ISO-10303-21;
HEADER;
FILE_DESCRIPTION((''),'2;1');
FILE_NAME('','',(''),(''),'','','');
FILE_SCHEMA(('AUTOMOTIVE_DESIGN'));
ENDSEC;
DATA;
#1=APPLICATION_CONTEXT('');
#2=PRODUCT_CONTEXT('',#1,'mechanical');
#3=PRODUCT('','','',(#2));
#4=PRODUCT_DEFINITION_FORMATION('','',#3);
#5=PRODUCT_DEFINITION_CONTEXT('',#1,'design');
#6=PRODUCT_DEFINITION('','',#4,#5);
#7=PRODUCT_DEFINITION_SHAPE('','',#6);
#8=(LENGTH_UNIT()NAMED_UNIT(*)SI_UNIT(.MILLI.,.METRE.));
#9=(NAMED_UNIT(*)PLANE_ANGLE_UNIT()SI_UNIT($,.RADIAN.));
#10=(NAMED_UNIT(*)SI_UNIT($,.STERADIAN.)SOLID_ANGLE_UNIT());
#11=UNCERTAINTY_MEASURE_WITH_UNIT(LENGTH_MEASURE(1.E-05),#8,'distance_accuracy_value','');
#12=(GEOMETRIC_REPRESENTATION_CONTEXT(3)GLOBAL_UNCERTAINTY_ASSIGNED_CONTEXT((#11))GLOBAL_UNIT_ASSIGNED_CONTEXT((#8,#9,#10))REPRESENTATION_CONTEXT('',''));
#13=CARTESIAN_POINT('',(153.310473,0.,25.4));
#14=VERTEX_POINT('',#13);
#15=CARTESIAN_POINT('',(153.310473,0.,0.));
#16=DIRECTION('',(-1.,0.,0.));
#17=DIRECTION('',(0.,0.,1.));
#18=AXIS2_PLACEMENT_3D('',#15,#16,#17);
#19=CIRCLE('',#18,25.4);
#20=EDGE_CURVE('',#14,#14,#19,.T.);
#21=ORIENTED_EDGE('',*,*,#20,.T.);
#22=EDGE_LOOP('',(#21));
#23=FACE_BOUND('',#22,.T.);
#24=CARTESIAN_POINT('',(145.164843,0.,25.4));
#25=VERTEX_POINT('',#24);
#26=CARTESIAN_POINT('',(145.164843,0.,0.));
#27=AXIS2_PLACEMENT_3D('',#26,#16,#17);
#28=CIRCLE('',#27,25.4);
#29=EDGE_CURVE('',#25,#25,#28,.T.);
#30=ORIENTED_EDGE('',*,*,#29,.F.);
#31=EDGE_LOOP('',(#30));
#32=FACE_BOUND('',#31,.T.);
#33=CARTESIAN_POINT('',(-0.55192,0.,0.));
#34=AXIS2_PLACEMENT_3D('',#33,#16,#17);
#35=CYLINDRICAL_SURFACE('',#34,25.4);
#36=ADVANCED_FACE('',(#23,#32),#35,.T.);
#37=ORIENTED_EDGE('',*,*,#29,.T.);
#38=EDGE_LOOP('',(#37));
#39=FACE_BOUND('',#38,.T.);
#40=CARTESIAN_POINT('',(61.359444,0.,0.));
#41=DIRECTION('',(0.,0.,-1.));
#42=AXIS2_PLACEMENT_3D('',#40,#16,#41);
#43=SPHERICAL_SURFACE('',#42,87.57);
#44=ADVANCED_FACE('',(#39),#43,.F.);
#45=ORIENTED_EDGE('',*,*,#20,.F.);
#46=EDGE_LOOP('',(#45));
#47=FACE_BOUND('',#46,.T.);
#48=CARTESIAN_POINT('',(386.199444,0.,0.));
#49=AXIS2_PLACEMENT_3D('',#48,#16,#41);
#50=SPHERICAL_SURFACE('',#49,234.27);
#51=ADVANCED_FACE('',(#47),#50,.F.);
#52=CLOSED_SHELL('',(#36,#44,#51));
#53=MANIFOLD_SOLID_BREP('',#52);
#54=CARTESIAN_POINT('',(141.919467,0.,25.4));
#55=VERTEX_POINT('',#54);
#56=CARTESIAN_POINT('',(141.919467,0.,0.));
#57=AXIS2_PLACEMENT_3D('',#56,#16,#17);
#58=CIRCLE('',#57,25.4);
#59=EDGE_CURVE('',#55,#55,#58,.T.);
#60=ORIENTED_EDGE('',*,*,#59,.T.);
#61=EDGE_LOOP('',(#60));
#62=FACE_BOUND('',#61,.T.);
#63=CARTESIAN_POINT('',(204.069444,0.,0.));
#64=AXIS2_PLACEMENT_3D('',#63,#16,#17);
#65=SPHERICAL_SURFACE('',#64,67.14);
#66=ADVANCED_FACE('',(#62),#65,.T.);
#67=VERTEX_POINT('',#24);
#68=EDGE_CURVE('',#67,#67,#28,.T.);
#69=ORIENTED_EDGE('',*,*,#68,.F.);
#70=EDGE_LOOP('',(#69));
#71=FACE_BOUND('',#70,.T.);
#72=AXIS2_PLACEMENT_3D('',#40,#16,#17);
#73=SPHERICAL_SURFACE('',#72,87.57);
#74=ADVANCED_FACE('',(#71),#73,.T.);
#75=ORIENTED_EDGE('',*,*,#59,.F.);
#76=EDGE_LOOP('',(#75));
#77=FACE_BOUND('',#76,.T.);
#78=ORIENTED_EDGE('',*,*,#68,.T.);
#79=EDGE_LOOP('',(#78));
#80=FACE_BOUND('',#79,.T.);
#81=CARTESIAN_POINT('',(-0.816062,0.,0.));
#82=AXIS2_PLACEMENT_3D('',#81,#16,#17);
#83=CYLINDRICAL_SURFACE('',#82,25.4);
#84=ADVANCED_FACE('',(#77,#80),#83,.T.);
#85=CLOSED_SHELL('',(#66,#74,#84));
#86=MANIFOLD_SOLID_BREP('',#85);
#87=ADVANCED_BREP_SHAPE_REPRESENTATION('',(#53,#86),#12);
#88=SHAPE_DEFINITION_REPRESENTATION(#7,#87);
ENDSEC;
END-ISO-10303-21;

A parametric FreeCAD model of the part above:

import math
import FreeCAD as App
import Part
import Sketcher

doc = App.newDocument("Part")
body = doc.addObject("PartDesign::Body", "Body")

sketch1 = body.newObject("Sketcher::SketchObject", "Sketch")
sketch1.AttachmentSupport = (doc.getObject("XZ_Plane"), [""])
sketch1.MapMode = "FlatFace"
sketch1.addGeometry([
    Part.ArcOfCircle(Part.Circle(App.Vector(204.1, 0, 0), App.Vector(0, 0, 1), 67.1), math.radians(180), math.radians(202)),
    Part.LineSegment(App.Vector(136.9, 0, 0), App.Vector(148.9, 0, 0)),
    Part.ArcOfCircle(Part.Circle(App.Vector(61.4, 0, 0), App.Vector(0, 0, 1), 87.6), math.radians(-16.86), math.radians(0)),
    Part.LineSegment(App.Vector(145.2, -25.4, 0), App.Vector(141.9, -25.4, 0)),
], False)
sketch1.addConstraint([
    Sketcher.Constraint("Coincident", 0, 1, 1, 1),
    Sketcher.Constraint("Coincident", 1, 2, 2, 2),
    Sketcher.Constraint("Coincident", 2, 1, 3, 1),
    Sketcher.Constraint("Coincident", 3, 2, 0, 2),
    Sketcher.Constraint("Horizontal", 1),
    Sketcher.Constraint("Horizontal", 3),
    Sketcher.Constraint("PointOnObject", 0, 3, -1),
    Sketcher.Constraint("PointOnObject", 2, 3, -1),
    Sketcher.Constraint("PointOnObject", 0, 1, -1),
    Sketcher.Constraint("DistanceX", 1, 1, 1, 2, 12.0),
    Sketcher.Constraint("Radius", 0, 67.14),
    Sketcher.Constraint("Radius", 2, 87.57),
    Sketcher.Constraint("DistanceY", 2, 1, -1, 1, 25.4),
    Sketcher.Constraint("DistanceX", -1, 1, 0, 3, 204.069444),
])
revolution = body.newObject("PartDesign::Revolution", "Revolution")
revolution.Profile = sketch1
revolution.ReferenceAxis = (sketch1, ["H_Axis"])
revolution.Angle = 360
body2 = doc.addObject("PartDesign::Body", "Body001")

sketch2 = body2.newObject("Sketcher::SketchObject", "Sketch001")
sketch2.AttachmentSupport = (doc.getObject("XZ_Plane001"), [""])
sketch2.MapMode = "FlatFace"
sketch2.addGeometry([
    Part.LineSegment(App.Vector(153.3, -25.4, 0), App.Vector(145.2, -25.4, 0)),
    Part.ArcOfCircle(Part.Circle(App.Vector(61.4, 0, 0), App.Vector(0, 0, 1), 87.6), math.radians(-16.86), math.radians(0)),
    Part.LineSegment(App.Vector(148.9, 0, 0), App.Vector(151.9, 0, 0)),
    Part.ArcOfCircle(Part.Circle(App.Vector(386.2, 0, 0), App.Vector(0, 0, 1), 234.3), math.radians(180), math.radians(186.22)),
], False)
sketch2.addConstraint([
    Sketcher.Constraint("Coincident", 0, 2, 1, 1),
    Sketcher.Constraint("Coincident", 1, 2, 2, 1),
    Sketcher.Constraint("Coincident", 2, 2, 3, 1),
    Sketcher.Constraint("Coincident", 3, 2, 0, 1),
    Sketcher.Constraint("Horizontal", 0),
    Sketcher.Constraint("Horizontal", 2),
    Sketcher.Constraint("PointOnObject", 1, 3, -1),
    Sketcher.Constraint("PointOnObject", 3, 3, -1),
    Sketcher.Constraint("PointOnObject", 1, 2, -1),
    Sketcher.Constraint("DistanceX", 2, 1, 2, 2, 3.0),
    Sketcher.Constraint("Radius", 1, 87.57),
    Sketcher.Constraint("Radius", 3, 234.269999),
    Sketcher.Constraint("DistanceY", 0, 2, -1, 1, 25.4),
    Sketcher.Constraint("DistanceX", -1, 1, 1, 3, 61.359444),
])
revolution2 = body2.newObject("PartDesign::Revolution", "Revolution001")
revolution2.Profile = sketch2
revolution2.ReferenceAxis = (sketch2, ["H_Axis"])
revolution2.Angle = 360

doc.recompute()
